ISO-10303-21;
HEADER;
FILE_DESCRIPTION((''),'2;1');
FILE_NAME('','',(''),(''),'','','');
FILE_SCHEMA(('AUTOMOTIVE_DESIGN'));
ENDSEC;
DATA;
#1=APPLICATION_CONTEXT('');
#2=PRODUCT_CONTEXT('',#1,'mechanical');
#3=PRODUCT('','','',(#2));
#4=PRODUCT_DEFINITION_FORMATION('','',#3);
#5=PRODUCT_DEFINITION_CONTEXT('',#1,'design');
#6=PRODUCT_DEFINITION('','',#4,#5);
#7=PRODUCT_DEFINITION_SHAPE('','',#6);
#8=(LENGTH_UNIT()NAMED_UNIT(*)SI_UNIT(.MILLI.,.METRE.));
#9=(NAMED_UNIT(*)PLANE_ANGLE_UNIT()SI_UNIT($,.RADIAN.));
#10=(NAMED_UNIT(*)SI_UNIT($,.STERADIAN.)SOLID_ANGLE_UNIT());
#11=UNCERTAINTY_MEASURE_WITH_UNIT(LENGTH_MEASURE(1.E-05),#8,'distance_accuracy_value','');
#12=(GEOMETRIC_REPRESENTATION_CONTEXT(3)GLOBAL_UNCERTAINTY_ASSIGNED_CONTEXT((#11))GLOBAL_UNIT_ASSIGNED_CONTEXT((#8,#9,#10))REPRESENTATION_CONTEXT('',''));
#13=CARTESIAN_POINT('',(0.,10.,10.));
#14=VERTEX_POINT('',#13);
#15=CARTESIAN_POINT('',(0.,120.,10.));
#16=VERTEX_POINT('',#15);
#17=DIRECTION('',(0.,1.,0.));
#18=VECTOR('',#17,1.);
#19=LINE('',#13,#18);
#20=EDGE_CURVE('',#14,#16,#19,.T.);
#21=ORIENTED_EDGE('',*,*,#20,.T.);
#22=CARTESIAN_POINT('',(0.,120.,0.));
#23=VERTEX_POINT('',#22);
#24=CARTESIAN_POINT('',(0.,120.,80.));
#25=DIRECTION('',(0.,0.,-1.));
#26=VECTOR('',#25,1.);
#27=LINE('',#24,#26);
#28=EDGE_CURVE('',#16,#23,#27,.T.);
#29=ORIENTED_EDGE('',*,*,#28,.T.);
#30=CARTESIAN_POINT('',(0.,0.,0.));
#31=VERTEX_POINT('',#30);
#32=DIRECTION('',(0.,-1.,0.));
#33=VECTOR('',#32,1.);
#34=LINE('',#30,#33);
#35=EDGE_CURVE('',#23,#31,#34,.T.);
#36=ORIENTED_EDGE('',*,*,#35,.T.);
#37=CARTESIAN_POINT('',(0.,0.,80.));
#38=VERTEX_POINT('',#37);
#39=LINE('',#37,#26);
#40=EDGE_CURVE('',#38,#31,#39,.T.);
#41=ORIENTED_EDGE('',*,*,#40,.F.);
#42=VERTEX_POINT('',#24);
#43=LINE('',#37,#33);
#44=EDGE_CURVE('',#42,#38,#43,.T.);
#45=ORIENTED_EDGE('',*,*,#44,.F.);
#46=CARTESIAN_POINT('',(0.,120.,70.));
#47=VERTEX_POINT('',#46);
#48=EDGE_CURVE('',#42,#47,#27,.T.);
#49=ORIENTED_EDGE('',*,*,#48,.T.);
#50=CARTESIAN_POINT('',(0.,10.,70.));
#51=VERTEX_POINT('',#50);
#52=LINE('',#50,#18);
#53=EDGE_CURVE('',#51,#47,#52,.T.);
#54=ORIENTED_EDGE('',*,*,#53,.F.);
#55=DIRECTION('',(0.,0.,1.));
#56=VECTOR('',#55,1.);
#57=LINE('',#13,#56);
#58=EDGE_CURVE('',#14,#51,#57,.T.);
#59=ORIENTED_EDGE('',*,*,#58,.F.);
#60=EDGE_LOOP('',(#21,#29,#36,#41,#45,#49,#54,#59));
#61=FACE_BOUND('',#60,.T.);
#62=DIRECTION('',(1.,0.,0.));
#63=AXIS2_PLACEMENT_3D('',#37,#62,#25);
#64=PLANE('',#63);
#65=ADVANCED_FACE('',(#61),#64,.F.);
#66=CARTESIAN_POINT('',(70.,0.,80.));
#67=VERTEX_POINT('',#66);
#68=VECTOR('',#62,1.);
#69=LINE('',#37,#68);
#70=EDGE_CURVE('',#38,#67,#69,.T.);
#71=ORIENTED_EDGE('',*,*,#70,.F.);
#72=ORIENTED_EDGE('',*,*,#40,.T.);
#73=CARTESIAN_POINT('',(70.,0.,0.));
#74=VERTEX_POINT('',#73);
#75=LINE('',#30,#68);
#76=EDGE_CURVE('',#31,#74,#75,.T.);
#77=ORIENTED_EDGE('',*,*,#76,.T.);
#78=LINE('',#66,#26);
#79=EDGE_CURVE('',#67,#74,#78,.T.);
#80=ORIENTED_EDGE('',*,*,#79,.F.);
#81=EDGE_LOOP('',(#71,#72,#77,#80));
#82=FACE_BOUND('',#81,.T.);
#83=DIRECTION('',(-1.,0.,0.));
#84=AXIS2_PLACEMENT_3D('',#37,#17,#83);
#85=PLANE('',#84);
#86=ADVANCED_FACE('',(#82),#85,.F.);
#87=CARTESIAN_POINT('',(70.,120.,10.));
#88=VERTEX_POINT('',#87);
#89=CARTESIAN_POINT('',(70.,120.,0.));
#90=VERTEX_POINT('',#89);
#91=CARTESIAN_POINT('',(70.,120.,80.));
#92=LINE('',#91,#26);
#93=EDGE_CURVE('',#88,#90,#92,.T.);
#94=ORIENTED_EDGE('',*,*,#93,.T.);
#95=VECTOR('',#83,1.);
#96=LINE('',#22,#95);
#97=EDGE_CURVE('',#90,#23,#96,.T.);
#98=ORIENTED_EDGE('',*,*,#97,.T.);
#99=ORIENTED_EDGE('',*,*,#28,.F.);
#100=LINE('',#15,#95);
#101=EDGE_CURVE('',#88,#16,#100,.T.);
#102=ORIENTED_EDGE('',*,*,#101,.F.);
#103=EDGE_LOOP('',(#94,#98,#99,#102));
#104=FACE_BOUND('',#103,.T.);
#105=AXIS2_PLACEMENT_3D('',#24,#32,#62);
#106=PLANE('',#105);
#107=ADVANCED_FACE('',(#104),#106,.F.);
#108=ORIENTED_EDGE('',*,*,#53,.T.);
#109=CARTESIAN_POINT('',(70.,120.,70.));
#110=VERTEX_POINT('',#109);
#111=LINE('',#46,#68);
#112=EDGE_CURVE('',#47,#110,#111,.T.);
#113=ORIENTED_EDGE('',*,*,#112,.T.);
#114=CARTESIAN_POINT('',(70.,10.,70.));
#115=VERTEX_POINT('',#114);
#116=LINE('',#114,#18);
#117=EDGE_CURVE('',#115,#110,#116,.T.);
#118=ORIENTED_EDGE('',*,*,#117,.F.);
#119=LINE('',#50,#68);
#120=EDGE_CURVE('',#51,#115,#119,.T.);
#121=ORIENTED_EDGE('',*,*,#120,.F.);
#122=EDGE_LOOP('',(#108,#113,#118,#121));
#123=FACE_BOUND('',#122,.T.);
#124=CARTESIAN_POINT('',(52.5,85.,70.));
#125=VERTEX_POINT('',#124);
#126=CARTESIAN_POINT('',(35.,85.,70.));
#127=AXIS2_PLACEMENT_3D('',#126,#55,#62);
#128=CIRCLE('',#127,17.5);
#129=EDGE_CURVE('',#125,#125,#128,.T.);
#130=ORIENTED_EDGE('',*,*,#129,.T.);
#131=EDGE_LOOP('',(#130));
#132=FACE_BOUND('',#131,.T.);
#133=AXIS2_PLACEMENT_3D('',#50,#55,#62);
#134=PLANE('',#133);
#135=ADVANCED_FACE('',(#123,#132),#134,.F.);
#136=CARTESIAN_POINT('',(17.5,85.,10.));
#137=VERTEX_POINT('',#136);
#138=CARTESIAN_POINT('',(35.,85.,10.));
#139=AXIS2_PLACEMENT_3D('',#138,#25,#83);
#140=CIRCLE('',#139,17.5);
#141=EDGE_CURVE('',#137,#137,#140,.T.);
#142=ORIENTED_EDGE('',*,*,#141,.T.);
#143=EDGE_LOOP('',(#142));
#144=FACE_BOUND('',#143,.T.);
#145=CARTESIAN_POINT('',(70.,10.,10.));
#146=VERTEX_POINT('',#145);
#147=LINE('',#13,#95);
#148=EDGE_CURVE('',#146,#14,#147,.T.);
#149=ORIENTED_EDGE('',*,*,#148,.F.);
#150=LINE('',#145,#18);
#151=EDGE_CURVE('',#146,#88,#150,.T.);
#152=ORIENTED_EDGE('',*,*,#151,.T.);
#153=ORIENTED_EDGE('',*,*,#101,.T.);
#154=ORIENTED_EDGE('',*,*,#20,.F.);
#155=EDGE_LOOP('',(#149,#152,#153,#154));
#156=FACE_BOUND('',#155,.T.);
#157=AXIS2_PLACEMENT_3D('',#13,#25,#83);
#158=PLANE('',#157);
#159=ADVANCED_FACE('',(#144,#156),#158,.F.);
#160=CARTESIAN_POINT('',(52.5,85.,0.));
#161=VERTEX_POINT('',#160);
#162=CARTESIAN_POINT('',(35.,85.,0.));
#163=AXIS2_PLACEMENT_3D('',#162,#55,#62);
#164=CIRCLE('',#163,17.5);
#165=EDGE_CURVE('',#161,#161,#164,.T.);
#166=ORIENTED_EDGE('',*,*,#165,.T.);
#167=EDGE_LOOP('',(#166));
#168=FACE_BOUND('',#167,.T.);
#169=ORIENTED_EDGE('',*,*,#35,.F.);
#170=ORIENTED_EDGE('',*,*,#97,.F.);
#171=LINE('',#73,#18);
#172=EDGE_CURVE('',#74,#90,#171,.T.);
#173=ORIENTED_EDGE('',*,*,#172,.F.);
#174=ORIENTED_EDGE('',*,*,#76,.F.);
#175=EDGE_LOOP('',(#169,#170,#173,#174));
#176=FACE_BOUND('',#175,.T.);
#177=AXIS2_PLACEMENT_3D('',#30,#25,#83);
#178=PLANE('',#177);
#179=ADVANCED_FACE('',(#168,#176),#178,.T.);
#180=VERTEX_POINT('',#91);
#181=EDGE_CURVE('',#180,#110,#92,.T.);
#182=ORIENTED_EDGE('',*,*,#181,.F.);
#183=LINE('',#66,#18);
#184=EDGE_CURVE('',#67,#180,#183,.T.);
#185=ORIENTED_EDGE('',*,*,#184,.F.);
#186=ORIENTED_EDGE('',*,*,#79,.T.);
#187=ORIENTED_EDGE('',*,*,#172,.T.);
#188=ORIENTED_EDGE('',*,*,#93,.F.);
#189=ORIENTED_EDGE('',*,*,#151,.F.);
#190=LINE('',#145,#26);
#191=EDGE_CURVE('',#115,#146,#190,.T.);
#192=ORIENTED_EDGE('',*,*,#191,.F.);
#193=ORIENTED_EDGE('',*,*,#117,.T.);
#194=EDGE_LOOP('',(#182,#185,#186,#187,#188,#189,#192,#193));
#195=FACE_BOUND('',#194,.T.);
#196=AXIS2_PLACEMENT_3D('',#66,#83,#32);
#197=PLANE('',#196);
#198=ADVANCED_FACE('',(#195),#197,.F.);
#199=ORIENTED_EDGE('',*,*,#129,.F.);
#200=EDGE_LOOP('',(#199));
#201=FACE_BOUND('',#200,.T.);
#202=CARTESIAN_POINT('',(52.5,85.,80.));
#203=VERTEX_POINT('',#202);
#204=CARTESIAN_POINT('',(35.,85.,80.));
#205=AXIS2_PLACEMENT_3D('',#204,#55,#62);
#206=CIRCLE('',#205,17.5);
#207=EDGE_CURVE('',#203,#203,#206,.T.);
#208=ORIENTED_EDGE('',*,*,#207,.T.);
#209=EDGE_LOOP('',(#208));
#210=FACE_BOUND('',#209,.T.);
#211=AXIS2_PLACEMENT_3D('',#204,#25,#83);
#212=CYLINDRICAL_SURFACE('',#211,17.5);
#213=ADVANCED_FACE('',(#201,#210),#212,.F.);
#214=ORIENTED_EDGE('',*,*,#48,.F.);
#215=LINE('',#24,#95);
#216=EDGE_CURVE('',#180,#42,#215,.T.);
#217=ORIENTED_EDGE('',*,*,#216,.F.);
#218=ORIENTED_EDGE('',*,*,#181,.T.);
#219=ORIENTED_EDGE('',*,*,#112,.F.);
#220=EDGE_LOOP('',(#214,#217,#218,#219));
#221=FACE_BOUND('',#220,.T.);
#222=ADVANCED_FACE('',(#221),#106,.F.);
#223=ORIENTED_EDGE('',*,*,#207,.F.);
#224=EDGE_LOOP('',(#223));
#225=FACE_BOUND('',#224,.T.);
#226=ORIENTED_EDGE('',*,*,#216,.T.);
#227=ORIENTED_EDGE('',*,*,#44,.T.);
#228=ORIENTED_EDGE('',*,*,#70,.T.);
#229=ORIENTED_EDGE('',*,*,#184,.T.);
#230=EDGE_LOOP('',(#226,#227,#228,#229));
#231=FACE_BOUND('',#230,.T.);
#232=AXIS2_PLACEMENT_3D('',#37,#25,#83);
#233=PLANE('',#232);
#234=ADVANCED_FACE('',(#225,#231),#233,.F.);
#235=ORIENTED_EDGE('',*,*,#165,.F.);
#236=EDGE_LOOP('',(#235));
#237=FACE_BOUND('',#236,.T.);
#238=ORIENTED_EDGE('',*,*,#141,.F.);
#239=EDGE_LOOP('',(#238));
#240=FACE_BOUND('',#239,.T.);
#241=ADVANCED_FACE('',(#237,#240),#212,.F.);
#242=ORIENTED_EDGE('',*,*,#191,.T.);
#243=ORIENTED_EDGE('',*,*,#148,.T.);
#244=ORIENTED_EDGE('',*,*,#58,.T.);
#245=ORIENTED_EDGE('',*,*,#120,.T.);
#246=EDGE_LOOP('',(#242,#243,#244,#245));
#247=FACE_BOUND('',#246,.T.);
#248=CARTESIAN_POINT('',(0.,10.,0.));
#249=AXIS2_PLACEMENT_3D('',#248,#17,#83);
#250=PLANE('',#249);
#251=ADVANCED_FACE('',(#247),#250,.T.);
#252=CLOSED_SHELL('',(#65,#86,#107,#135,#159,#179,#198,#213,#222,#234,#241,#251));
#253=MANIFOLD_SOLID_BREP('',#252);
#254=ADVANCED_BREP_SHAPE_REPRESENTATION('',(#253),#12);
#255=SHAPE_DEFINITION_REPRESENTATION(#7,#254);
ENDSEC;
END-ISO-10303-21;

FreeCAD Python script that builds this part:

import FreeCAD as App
import Part
import Sketcher


def add_polygon(sketch, points):
    """Adds a closed chain of lines whose ends are joined by coincident constraints."""
    first, n = sketch.GeometryCount, len(points)
    for a, b in zip(points, points[1:] + points[:1]):
        sketch.addGeometry(Part.LineSegment(App.Vector(*a, 0), App.Vector(*b, 0)), False)
    for i in range(n):
        sketch.addConstraint(Sketcher.Constraint("Coincident", first + i, 2, first + (i + 1) % n, 1))

doc = App.newDocument("Part")
params = doc.addObject("Spreadsheet::Sheet", "Params")
for row, (alias, value) in enumerate([
    ("sketch1_diameter", "35 mm"),
    ("sketch1_width", "70 mm"),
    ("sketch1_height", "120 mm"),
    ("pad1_length", "80 mm"),
    ("sketch2_width", "70 mm"),
    ("sketch2_height", "60 mm"),
    ("pocket1_length", "110 mm"),
], start=1):
    params.set(f"A{row}", alias)
    params.set(f"B{row}", "=" + value)
    params.setAlias(f"B{row}", alias)

body = doc.addObject("PartDesign::Body", "Body")

sketch1 = doc.addObject("Sketcher::SketchObject", "Sketch")
body.addObject(sketch1)
sketch1.AttachmentSupport = (doc.XY_Plane, [""])
sketch1.MapMode = "FlatFace"
add_polygon(sketch1, [(0, 120), (0, 0), (70, 0), (70, 120)])
sketch1.addGeometry(Part.Circle(App.Vector(35, 85, 0), App.Vector(0, 0, 1), 18), False)
sketch1.addConstraint(Sketcher.Constraint("Vertical", 0))
sketch1.addConstraint(Sketcher.Constraint("Horizontal", 1))
sketch1.addConstraint(Sketcher.Constraint("Vertical", 2))
sketch1.addConstraint(Sketcher.Constraint("Horizontal", 3))
sketch1.addConstraint(Sketcher.Constraint("Coincident", 0, 2, -1, 1))
sketch1.addConstraint(Sketcher.Constraint("Diameter", 4, 35.0))
sketch1.addConstraint(Sketcher.Constraint("DistanceX", 1, 1, 1, 2, 70.0))
sketch1.addConstraint(Sketcher.Constraint("DistanceY", 0, 2, 0, 1, 120.0))
sketch1.addConstraint(Sketcher.Constraint("DistanceX", -1, 1, 4, 3, 35.0))
sketch1.addConstraint(Sketcher.Constraint("DistanceY", -1, 1, 4, 3, 85.0))
sketch1.setExpression("Constraints[9]", "Params.sketch1_diameter")
sketch1.setExpression("Constraints[10]", "Params.sketch1_width")
sketch1.setExpression("Constraints[11]", "Params.sketch1_height")
pad1 = doc.addObject("PartDesign::Pad", "Pad")
body.addObject(pad1)
pad1.Profile = sketch1
pad1.setExpression("Length", "Params.pad1_length")

sketch2 = doc.addObject("Sketcher::SketchObject", "Sketch001")
body.addObject(sketch2)
sketch2.AttachmentSupport = (doc.XZ_Plane, [""])
sketch2.MapMode = "FlatFace"
sketch2.AttachmentOffset = App.Placement(App.Vector(0, 0, -120), App.Rotation())
add_polygon(sketch2, [(0, 10), (0, 70), (70, 70), (70, 10)])
sketch2.addConstraint(Sketcher.Constraint("Vertical", 0))
sketch2.addConstraint(Sketcher.Constraint("Horizontal", 1))
sketch2.addConstraint(Sketcher.Constraint("Vertical", 2))
sketch2.addConstraint(Sketcher.Constraint("Horizontal", 3))
sketch2.addConstraint(Sketcher.Constraint("PointOnObject", 0, 2, -2))
sketch2.addConstraint(Sketcher.Constraint("DistanceX", 1, 1, 1, 2, 70.0))
sketch2.addConstraint(Sketcher.Constraint("DistanceY", 0, 1, 0, 2, 60.0))
sketch2.addConstraint(Sketcher.Constraint("DistanceY", -1, 1, 0, 2, 70.0))
sketch2.setExpression("Constraints[9]", "Params.sketch2_width")
sketch2.setExpression("Constraints[10]", "Params.sketch2_height")
pocket1 = doc.addObject("PartDesign::Pocket", "Pocket")
body.addObject(pocket1)
pocket1.Profile = sketch2
pocket1.setExpression("Length", "Params.pocket1_length")
pocket1.Reversed = True

doc.recompute()
